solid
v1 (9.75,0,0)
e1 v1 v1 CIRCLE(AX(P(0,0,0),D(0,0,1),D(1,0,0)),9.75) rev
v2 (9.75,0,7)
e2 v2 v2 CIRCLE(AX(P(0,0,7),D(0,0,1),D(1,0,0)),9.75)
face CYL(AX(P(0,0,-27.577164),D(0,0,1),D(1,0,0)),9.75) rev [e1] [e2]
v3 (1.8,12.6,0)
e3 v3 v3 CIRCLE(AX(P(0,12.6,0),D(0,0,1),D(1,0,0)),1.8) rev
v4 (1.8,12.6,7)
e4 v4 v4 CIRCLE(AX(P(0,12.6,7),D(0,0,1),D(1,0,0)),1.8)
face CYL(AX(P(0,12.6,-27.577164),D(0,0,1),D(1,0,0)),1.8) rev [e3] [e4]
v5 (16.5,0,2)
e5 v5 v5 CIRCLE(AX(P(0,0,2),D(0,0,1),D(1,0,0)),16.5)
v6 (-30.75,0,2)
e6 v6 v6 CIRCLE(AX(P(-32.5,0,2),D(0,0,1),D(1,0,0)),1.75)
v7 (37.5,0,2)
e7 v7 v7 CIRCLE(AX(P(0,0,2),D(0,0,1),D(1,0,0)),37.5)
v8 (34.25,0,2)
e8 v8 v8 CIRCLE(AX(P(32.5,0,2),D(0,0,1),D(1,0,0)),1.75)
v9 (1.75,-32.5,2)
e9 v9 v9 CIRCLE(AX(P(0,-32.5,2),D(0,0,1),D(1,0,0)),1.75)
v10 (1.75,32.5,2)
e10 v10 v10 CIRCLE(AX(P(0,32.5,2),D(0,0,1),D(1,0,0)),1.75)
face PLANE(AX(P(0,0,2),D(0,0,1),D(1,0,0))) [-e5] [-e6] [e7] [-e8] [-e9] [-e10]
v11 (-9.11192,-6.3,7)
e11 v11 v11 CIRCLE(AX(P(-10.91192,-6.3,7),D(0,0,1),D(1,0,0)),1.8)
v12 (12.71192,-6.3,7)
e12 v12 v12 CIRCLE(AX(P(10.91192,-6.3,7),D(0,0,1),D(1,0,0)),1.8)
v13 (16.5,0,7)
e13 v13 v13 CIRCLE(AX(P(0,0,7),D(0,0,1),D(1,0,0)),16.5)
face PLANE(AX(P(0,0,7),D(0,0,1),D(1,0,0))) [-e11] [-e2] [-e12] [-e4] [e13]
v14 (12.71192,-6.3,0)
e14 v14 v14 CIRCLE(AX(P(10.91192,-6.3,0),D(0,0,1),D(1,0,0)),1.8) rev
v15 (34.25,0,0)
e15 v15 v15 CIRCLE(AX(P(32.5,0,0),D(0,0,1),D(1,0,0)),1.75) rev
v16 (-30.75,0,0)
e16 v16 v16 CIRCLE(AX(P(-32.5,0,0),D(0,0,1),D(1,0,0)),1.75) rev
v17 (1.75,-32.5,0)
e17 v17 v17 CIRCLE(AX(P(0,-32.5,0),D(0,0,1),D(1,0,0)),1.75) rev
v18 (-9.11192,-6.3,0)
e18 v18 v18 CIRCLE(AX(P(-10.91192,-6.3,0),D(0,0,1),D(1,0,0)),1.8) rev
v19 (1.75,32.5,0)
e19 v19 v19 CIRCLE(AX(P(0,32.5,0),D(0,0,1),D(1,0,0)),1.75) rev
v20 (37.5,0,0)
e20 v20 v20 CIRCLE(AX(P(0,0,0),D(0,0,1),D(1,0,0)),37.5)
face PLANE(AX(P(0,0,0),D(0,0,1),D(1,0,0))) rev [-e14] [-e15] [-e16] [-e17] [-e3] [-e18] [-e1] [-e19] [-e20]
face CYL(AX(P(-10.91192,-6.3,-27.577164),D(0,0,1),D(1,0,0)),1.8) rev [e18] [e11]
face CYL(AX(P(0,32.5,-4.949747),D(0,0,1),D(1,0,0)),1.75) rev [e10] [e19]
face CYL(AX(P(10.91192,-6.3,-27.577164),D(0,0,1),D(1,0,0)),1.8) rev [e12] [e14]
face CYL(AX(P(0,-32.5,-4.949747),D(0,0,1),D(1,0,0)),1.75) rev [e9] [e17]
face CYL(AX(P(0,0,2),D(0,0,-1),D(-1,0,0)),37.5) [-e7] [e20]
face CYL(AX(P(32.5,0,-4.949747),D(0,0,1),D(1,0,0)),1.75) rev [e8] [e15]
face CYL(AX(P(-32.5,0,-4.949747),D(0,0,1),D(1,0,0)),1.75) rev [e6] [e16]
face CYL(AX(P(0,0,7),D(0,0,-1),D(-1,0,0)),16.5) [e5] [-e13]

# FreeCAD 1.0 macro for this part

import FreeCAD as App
import Part
import Sketcher

V = App.Vector

doc = App.newDocument("Part")
body = doc.addObject("PartDesign::Body", "Body")

# Sketch on XY plane
sketch1 = body.newObject("Sketcher::SketchObject", "Sketch")
sketch1.AttachmentSupport = (doc.getObject("XY_Plane"), [""])
sketch1.MapMode = "FlatFace"
sketch1.addGeometry(Part.Circle(V(0, 0, 0), V(0, 0, 1), 38), False)
sketch1.addConstraint(Sketcher.Constraint("Coincident", 0, 3, -1, 1))
sketch1.addConstraint(Sketcher.Constraint("Diameter", 0, 75.0))
pad1 = body.newObject("PartDesign::Pad", "Pad")
pad1.Profile = sketch1
pad1.Length = 2

# Sketch on XY plane
sketch2 = body.newObject("Sketcher::SketchObject", "Sketch001")
sketch2.AttachmentSupport = (doc.getObject("XY_Plane"), [""])
sketch2.MapMode = "FlatFace"
sketch2.AttachmentOffset = App.Placement(V(0, 0, 2), App.Rotation())
sketch2.addGeometry(Part.Circle(V(0, 32.5, 0), V(0, 0, 1), 1.8), False)
sketch2.addGeometry(Part.Circle(V(32.5, 0, 0), V(0, 0, 1), 1.8), False)
sketch2.addGeometry(Part.Circle(V(0, -32.5, 0), V(0, 0, 1), 1.8), False)
sketch2.addGeometry(Part.Circle(V(-32.5, 0, 0), V(0, 0, 1), 1.8), False)
sketch2.addConstraint(Sketcher.Constraint("Equal", 0, 1))
sketch2.addConstraint(Sketcher.Constraint("Equal", 1, 2))
sketch2.addConstraint(Sketcher.Constraint("Equal", 2, 3))
sketch2.addConstraint(Sketcher.Constraint("Symmetric", 0, 3, 2, 3, -1, 1))
sketch2.addConstraint(Sketcher.Constraint("Symmetric", 1, 3, 3, 3, -1, 1))
sketch2.addConstraint(Sketcher.Constraint("PointOnObject", 0, 3, -2))
sketch2.addConstraint(Sketcher.Constraint("PointOnObject", 1, 3, -1))
sketch2.addConstraint(Sketcher.Constraint("Diameter", 0, 3.5))
sketch2.addConstraint(Sketcher.Constraint("DistanceY", 2, 3, 0, 3, 65.0))
sketch2.addConstraint(Sketcher.Constraint("DistanceX", 3, 3, 1, 3, 65.0))
pocket1 = body.newObject("PartDesign::Pocket", "Pocket")
pocket1.Profile = sketch2
pocket1.Length = 2

# Sketch on XY plane
sketch3 = body.newObject("Sketcher::SketchObject", "Sketch002")
sketch3.AttachmentSupport = (doc.getObject("XY_Plane"), [""])
sketch3.MapMode = "FlatFace"
sketch3.AttachmentOffset = App.Placement(V(0, 0, 2), App.Rotation())
sketch3.addGeometry(Part.Circle(V(0, 0, 0), V(0, 0, 1), 16), False)
sketch3.addConstraint(Sketcher.Constraint("Coincident", 0, 3, -1, 1))
sketch3.addConstraint(Sketcher.Constraint("Diameter", 0, 33.0))
pad2 = body.newObject("PartDesign::Pad", "Pad001")
pad2.Profile = sketch3
pad2.Length = 5

# Sketch on XY plane
sketch4 = body.newObject("Sketcher::SketchObject", "Sketch003")
sketch4.AttachmentSupport = (doc.getObject("XY_Plane"), [""])
sketch4.MapMode = "FlatFace"
sketch4.AttachmentOffset = App.Placement(V(0, 0, 7), App.Rotation())
sketch4.addGeometry(Part.Circle(V(0, 0, 0), V(0, 0, 1), 9.8), False)
sketch4.addGeometry(Part.Circle(V(0, 12.6, 0), V(0, 0, 1), 1.8), False)
sketch4.addGeometry(Part.Circle(V(10.9, -6.3, 0), V(0, 0, 1), 1.8), False)
sketch4.addGeometry(Part.Circle(V(-10.9, -6.3, 0), V(0, 0, 1), 1.8), False)
sketch4.addConstraint(Sketcher.Constraint("Coincident", 0, 3, -1, 1))
sketch4.addConstraint(Sketcher.Constraint("Equal", 1, 2))
sketch4.addConstraint(Sketcher.Constraint("Equal", 2, 3))
sketch4.addConstraint(Sketcher.Constraint("Symmetric", 2, 3, 3, 3, -2))
sketch4.addConstraint(Sketcher.Constraint("PointOnObject", 1, 3, -2))
sketch4.addConstraint(Sketcher.Constraint("Diameter", 0, 19.5))
sketch4.addConstraint(Sketcher.Constraint("Diameter", 1, 3.6))
sketch4.addConstraint(Sketcher.Constraint("DistanceY", -1, 1, 1, 3, 12.6))
sketch4.addConstraint(Sketcher.Constraint("DistanceY", 2, 3, -1, 1, 6.3))
sketch4.addConstraint(Sketcher.Constraint("DistanceX", -1, 1, 2, 3, 10.91192))
pocket2 = body.newObject("PartDesign::Pocket", "Pocket001")
pocket2.Profile = sketch4
pocket2.Length = 7

doc.recompute()
